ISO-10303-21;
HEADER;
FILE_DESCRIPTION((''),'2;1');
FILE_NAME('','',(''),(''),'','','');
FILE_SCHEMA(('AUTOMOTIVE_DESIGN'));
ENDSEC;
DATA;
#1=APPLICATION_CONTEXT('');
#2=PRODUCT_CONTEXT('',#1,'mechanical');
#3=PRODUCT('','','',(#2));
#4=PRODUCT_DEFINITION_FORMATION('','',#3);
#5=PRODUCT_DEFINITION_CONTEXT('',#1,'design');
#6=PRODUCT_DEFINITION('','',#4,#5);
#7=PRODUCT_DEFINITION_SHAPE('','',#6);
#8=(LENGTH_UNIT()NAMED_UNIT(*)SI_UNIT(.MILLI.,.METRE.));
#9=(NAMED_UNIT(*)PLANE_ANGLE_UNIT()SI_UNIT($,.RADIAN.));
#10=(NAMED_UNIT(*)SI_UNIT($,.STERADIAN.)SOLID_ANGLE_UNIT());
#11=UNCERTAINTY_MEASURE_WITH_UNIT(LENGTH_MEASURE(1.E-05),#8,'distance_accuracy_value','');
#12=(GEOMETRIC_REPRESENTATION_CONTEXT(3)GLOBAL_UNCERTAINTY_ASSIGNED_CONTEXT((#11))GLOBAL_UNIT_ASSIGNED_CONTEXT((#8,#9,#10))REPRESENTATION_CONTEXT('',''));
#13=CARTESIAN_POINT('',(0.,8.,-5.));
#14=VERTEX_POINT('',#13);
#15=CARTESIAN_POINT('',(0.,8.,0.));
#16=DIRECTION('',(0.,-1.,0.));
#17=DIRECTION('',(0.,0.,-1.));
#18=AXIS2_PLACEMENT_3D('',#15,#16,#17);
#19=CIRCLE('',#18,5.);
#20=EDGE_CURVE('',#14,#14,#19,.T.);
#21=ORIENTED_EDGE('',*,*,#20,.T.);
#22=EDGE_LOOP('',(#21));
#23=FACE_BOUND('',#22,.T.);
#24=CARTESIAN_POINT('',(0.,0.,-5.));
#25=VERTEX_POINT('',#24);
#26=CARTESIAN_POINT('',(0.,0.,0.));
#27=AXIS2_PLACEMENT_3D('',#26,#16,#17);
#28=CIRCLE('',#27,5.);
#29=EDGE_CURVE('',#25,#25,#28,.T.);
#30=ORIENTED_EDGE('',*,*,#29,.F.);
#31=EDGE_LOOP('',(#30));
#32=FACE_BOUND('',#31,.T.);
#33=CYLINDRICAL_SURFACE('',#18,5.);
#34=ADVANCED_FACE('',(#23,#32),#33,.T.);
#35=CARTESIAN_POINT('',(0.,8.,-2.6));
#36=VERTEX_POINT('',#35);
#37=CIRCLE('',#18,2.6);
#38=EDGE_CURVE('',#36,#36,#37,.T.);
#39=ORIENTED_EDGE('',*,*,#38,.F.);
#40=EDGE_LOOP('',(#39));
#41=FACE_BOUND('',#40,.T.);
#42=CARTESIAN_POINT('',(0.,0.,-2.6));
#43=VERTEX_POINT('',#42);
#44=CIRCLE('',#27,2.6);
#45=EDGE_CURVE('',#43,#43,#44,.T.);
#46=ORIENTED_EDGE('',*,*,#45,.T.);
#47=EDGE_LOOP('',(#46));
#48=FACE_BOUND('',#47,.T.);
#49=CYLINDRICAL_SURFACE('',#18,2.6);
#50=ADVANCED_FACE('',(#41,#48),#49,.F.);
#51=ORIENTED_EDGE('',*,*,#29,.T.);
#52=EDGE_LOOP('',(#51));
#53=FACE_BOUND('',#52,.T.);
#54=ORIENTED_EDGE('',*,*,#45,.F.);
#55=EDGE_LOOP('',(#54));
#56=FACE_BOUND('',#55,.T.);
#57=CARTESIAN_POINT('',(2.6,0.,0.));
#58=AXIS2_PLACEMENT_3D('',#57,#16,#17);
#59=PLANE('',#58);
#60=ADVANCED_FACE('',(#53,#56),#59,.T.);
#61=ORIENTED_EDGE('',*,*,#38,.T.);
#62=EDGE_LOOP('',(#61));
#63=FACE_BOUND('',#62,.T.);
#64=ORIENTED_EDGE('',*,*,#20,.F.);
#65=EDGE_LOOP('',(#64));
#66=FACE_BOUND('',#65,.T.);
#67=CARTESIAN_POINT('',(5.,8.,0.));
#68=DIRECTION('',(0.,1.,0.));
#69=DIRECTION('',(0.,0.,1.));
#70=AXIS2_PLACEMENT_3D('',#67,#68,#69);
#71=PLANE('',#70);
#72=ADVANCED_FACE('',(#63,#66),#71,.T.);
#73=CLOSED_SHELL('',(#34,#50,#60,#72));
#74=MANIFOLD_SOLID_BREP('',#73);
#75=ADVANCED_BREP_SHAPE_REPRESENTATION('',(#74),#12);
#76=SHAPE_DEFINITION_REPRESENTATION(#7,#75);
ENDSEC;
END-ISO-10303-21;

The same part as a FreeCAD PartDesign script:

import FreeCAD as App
import Part
import Sketcher
from FreeCAD import Vector
Q = App.Units.Quantity

doc = App.newDocument("Part")
body = doc.addObject("PartDesign::Body", "Body")

# Sketch on XY plane
sketch1 = body.newObject("Sketcher::SketchObject", "Sketch")
sketch1.AttachmentSupport = (doc.getObject("XY_Plane"), [""])
sketch1.MapMode = "FlatFace"
sketch1.addGeometry(Part.LineSegment(Vector(2.6, 8, 0), Vector(2.6, 0, 0)), False)
sketch1.addGeometry(Part.LineSegment(Vector(2.6, 0, 0), Vector(5, 0, 0)), False)
sketch1.addGeometry(Part.LineSegment(Vector(5, 0, 0), Vector(5, 8, 0)), False)
sketch1.addGeometry(Part.LineSegment(Vector(5, 8, 0), Vector(2.6, 8, 0)), False)
sketch1.addConstraint(Sketcher.Constraint("Coincident", 0, 2, 1, 1))
sketch1.addConstraint(Sketcher.Constraint("Coincident", 1, 2, 2, 1))
sketch1.addConstraint(Sketcher.Constraint("Coincident", 2, 2, 3, 1))
sketch1.addConstraint(Sketcher.Constraint("Coincident", 3, 2, 0, 1))
sketch1.addConstraint(Sketcher.Constraint("Vertical", 0))
sketch1.addConstraint(Sketcher.Constraint("Horizontal", 1))
sketch1.addConstraint(Sketcher.Constraint("Vertical", 2))
sketch1.addConstraint(Sketcher.Constraint("Horizontal", 3))
sketch1.addConstraint(Sketcher.Constraint("PointOnObject", 0, 2, -1))
sketch1.addConstraint(Sketcher.Constraint("DistanceY", 0, 2, 0, 1, Q("8 mm")))
sketch1.addConstraint(Sketcher.Constraint("DistanceX", 1, 1, 1, 2, Q("2.4 mm")))
sketch1.addConstraint(Sketcher.Constraint("DistanceX", -1, 1, 1, 2, Q("5 mm")))
revolution = body.newObject("PartDesign::Revolution", "Revolution")
revolution.Profile = sketch1
revolution.ReferenceAxis = (sketch1, ["V_Axis"])
revolution.Angle = 360

doc.recompute()
